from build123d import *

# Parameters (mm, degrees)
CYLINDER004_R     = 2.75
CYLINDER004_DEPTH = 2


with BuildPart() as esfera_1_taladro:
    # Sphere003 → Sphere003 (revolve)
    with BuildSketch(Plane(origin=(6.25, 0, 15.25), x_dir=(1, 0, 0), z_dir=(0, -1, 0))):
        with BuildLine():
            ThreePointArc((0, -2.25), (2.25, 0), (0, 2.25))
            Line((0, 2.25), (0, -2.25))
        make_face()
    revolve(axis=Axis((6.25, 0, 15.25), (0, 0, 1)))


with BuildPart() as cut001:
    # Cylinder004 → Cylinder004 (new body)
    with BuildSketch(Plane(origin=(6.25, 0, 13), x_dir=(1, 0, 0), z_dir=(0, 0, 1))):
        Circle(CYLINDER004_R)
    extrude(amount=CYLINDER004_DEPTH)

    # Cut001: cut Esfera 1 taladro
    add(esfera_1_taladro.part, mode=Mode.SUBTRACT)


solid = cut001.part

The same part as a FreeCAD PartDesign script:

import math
import FreeCAD as App
import Part
import Sketcher

V = App.Vector

doc = App.newDocument("Part")
body = doc.addObject("PartDesign::Body", "Body")

# Sketch on XZ plane
sketch1 = doc.addObject("Sketcher::SketchObject", "Sketch")
body.addObject(sketch1)
sketch1.AttachmentSupport = (doc.XZ_Plane, [""])
sketch1.MapMode = "FlatFace"
sketch1.addGeometry([
    Part.ArcOfCircle(Part.Circle(V(6.2, 15.2, 0), V(0, 0, 1), 2.2), math.radians(-90), math.radians(90)),
    Part.LineSegment(V(6.2, 17.5, 0), V(6.2, 13, 0)),
], False)
sketch1.addGeometry(Part.LineSegment(V(6.2, 13, 0), V(6.2, 17.5, 0)), True)  # axis
sketch1.addConstraint([
    Sketcher.Constraint("Coincident", 0, 1, 1, 2),
    Sketcher.Constraint("Coincident", 1, 1, 0, 2),
    Sketcher.Constraint("Vertical", 1),
    Sketcher.Constraint("Vertical", 2),
    Sketcher.Constraint("Coincident", 2, 1, 0, 1),
    Sketcher.Constraint("Equal", 1, 2),
    Sketcher.Constraint("Radius", 0, 2.25),
    Sketcher.Constraint("DistanceY", -1, 1, 0, 1, 13.0),
    Sketcher.Constraint("DistanceX", -1, 1, 0, 3, 6.25),
    Sketcher.Constraint("DistanceX", -1, 1, 0, 1, 6.25),
])
revolution = doc.addObject("PartDesign::Revolution", "Revolution")
body.addObject(revolution)
revolution.Profile = sketch1
revolution.ReferenceAxis = (sketch1, ["Axis0"])
revolution.Angle = 360
body2 = doc.addObject("PartDesign::Body", "Body001")

# Sketch on XY plane
sketch2 = doc.addObject("Sketcher::SketchObject", "Sketch001")
body2.addObject(sketch2)
sketch2.AttachmentSupport = (doc.getObject("XY_Plane001"), [""])
sketch2.MapMode = "FlatFace"
sketch2.AttachmentOffset = App.Placement(V(0, 0, 13), App.Rotation())
sketch2.addGeometry(Part.Circle(V(6.2, 0, 0), V(0, 0, 1), 2.8), False)
sketch2.addConstraint([
    Sketcher.Constraint("PointOnObject", 0, 3, -1),
    Sketcher.Constraint("Diameter", 0, 5.5),
    Sketcher.Constraint("DistanceX", -1, 1, 0, 3, 6.25),
])
pad1 = doc.addObject("PartDesign::Pad", "Pad")
body2.addObject(pad1)
pad1.Profile = sketch2
pad1.Length = 2
doc.recompute()

boolean = doc.addObject("PartDesign::Boolean", "Boolean")
body2.addObject(boolean)
boolean.Type = "Cut"
boolean.addObjects([body])

doc.recompute()
